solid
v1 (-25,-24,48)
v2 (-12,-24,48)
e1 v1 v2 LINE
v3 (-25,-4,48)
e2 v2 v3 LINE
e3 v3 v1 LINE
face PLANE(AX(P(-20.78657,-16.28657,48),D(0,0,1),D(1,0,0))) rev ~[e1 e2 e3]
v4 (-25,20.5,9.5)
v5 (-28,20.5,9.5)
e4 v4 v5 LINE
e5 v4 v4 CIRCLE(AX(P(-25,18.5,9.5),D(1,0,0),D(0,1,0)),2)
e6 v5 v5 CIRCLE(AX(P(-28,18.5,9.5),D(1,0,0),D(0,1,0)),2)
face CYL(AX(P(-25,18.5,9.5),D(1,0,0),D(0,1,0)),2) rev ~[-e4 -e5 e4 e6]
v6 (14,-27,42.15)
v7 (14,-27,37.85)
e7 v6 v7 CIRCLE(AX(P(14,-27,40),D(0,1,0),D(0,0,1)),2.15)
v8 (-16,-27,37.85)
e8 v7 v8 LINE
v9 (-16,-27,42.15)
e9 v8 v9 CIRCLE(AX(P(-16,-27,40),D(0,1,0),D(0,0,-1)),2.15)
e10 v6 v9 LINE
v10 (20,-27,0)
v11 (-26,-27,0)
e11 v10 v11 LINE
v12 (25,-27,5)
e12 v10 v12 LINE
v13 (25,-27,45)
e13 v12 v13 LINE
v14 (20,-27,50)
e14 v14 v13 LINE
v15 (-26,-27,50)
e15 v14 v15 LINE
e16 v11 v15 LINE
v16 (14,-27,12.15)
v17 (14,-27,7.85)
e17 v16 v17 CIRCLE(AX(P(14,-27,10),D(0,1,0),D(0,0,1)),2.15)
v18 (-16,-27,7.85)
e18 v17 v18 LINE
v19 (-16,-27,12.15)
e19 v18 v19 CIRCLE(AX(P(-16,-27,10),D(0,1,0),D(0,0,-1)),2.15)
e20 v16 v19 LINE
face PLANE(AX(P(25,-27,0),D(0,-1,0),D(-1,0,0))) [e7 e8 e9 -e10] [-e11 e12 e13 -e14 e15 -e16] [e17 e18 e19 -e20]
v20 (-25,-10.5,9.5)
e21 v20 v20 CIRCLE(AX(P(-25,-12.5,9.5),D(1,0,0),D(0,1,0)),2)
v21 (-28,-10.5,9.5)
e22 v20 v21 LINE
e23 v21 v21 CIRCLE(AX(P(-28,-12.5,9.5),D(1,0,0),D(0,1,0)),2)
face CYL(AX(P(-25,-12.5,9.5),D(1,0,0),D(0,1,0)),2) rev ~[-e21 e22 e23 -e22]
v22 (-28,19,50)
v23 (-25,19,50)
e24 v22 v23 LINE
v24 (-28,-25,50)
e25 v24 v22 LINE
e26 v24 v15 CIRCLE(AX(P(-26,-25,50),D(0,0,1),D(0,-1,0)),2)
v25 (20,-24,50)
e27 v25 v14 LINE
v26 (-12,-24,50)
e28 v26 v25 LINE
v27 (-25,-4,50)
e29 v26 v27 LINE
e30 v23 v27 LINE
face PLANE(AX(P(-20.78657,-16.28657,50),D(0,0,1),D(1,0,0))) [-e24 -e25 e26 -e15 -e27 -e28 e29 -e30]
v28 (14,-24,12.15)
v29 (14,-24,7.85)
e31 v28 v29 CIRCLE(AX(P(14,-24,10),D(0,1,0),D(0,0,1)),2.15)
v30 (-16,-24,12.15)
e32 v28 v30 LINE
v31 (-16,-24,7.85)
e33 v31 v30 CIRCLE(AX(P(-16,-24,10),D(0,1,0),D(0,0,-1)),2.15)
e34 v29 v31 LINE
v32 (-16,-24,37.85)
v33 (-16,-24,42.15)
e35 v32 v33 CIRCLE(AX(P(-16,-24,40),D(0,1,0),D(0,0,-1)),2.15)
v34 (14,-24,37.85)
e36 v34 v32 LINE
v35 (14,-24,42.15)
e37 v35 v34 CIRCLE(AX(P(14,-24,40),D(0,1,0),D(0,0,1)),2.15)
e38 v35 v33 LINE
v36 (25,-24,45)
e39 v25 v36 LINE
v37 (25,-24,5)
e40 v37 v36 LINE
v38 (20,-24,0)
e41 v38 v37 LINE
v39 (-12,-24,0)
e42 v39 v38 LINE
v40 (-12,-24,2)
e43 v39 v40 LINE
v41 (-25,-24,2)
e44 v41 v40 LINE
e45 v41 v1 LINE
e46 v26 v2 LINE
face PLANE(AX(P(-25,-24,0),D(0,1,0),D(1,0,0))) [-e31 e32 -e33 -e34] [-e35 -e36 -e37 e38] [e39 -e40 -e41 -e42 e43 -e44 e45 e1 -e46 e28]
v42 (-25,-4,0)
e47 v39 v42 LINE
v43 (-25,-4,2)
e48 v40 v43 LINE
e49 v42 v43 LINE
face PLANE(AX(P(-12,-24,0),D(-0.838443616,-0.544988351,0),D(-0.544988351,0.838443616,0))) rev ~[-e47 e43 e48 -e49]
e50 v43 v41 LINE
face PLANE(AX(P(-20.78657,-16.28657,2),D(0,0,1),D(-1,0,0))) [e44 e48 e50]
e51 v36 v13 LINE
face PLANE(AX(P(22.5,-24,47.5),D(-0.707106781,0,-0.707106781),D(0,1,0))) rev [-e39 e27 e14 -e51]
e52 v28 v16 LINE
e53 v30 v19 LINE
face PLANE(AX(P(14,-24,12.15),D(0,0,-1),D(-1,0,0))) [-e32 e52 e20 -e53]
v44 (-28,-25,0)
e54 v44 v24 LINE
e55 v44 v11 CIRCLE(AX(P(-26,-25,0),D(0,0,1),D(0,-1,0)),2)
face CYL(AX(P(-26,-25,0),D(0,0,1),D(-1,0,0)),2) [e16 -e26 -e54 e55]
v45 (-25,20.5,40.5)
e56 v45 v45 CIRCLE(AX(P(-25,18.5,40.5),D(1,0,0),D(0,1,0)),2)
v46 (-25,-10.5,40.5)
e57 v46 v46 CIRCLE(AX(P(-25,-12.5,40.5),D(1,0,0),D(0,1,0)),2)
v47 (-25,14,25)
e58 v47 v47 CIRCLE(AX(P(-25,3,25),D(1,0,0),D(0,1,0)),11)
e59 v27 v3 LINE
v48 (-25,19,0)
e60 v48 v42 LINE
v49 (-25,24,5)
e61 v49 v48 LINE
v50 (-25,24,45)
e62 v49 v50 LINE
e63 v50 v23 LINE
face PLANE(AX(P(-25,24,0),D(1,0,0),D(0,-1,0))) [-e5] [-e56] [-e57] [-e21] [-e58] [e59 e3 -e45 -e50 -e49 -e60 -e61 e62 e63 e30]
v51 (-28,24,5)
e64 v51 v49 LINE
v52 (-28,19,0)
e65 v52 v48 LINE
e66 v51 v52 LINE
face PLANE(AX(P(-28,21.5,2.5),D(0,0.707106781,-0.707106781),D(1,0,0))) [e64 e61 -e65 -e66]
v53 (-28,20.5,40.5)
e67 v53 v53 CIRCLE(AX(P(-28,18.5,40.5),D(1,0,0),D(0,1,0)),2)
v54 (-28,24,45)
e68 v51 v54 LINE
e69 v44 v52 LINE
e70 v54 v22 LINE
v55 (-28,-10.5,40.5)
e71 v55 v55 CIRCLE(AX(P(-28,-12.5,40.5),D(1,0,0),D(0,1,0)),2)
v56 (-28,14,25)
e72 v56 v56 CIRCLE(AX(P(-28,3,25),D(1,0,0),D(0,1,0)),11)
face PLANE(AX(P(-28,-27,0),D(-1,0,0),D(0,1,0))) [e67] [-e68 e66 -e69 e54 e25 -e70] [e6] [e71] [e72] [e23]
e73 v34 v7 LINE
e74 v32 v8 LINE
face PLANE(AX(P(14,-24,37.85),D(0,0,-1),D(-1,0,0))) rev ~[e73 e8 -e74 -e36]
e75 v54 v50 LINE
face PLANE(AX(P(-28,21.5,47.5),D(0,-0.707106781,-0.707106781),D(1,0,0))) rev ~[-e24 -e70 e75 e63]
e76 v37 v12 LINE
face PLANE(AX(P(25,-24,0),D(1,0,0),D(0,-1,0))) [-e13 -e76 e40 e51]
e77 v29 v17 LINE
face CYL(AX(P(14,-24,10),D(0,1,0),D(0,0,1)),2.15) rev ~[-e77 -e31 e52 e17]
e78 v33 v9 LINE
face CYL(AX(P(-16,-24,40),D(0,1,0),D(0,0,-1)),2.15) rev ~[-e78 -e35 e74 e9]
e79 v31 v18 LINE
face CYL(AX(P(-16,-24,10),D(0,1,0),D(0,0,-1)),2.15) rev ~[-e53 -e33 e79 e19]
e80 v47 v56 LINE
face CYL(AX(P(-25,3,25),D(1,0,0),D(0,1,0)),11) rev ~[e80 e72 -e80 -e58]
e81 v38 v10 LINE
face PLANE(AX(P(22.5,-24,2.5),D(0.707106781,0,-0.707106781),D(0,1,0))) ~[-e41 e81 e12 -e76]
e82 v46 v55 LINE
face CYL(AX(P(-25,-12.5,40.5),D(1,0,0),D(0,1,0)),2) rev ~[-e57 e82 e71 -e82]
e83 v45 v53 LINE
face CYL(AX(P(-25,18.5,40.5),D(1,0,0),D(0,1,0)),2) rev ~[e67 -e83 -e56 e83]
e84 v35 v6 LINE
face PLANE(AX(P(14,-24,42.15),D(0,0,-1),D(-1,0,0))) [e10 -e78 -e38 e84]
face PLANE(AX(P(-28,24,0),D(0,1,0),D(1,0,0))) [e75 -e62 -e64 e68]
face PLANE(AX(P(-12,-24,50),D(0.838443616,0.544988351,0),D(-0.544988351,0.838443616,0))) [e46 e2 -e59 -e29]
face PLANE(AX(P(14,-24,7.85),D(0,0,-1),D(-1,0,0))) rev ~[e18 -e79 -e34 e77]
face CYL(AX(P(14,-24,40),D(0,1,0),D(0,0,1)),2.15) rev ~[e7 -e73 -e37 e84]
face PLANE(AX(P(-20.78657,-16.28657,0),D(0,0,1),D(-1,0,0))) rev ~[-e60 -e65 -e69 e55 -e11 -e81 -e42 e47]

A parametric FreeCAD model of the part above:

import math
import FreeCAD as App
import Part
import Sketcher
from FreeCAD import Vector


def edges_at(feature, points):
    """Names of the edges that pass closest to the given points."""
    edges = feature.Shape.Edges
    near = lambda p: min(range(len(edges)), key=lambda i: edges[i].distToShape(Part.Vertex(*p))[0])
    return sorted({f"Edge{near(p) + 1}" for p in points})

doc = App.newDocument("Part")
body = doc.addObject("PartDesign::Body", "Body")

sketch1 = doc.addObject("Sketcher::SketchObject", "Sketch")
body.addObject(sketch1)
sketch1.AttachmentSupport = (doc.XY_Plane, [""])
sketch1.MapMode = "FlatFace"
sketch1.addGeometry([
    Part.LineSegment(Vector(-25, 24, 0), Vector(-28, 24, 0)),
    Part.LineSegment(Vector(-28, 24, 0), Vector(-28, -27, 0)),
    Part.LineSegment(Vector(-28, -27, 0), Vector(25, -27, 0)),
    Part.LineSegment(Vector(25, -27, 0), Vector(25, -24, 0)),
    Part.LineSegment(Vector(25, -24, 0), Vector(-25, -24, 0)),
    Part.LineSegment(Vector(-25, -24, 0), Vector(-25, 24, 0)),
], False)
sketch1.addConstraint([
    Sketcher.Constraint("Coincident", 0, 2, 1, 1),
    Sketcher.Constraint("Coincident", 1, 2, 2, 1),
    Sketcher.Constraint("Coincident", 2, 2, 3, 1),
    Sketcher.Constraint("Coincident", 3, 2, 4, 1),
    Sketcher.Constraint("Coincident", 4, 2, 5, 1),
    Sketcher.Constraint("Coincident", 5, 2, 0, 1),
    Sketcher.Constraint("Horizontal", 0),
    Sketcher.Constraint("Vertical", 1),
    Sketcher.Constraint("Horizontal", 2),
    Sketcher.Constraint("Vertical", 3),
    Sketcher.Constraint("Horizontal", 4),
    Sketcher.Constraint("Vertical", 5),
    Sketcher.Constraint("Symmetric", 3, 2, 5, 2, -1, 1),
    Sketcher.Constraint("Equal", 0, 3),
    Sketcher.Constraint("DistanceX", 0, 2, 0, 1, 3.0),
    Sketcher.Constraint("DistanceX", 2, 1, 2, 2, 53.0),
    Sketcher.Constraint("DistanceY", 1, 2, 1, 1, 51.0),
])
pad1 = doc.addObject("PartDesign::Pad", "Pad")
body.addObject(pad1)
pad1.Profile = sketch1
pad1.Length = 50

sketch2 = doc.addObject("Sketcher::SketchObject", "Sketch001")
body.addObject(sketch2)
sketch2.AttachmentSupport = (doc.YZ_Plane, [""])
sketch2.MapMode = "FlatFace"
sketch2.AttachmentOffset = App.Placement(Vector(0, 0, -25), App.Rotation())
sketch2.addGeometry([
    Part.Circle(Vector(3, 25, 0), Vector(0, 0, 1), 11),
    Part.Circle(Vector(-12.5, 40.5, 0), Vector(0, 0, 1), 2),
    Part.Circle(Vector(18.5, 40.5, 0), Vector(0, 0, 1), 2),
    Part.Circle(Vector(-12.5, 9.5, 0), Vector(0, 0, 1), 2),
    Part.Circle(Vector(18.5, 9.5, 0), Vector(0, 0, 1), 2),
], False)
sketch2.addConstraint([
    Sketcher.Constraint("Equal", 1, 2),
    Sketcher.Constraint("Equal", 2, 3),
    Sketcher.Constraint("Equal", 3, 4),
    Sketcher.Constraint("Horizontal", 1, 3, 2, 3),
    Sketcher.Constraint("Horizontal", 3, 3, 4, 3),
    Sketcher.Constraint("Vertical", 1, 3, 3, 3),
    Sketcher.Constraint("Vertical", 2, 3, 4, 3),
    Sketcher.Constraint("Diameter", 0, 22.0),
    Sketcher.Constraint("Diameter", 1, 4.0),
    Sketcher.Constraint("DistanceX", -1, 1, 0, 3, 3.0),
    Sketcher.Constraint("DistanceY", -1, 1, 0, 3, 25.0),
    Sketcher.Constraint("DistanceX", 1, 3, 2, 3, 31.0),
    Sketcher.Constraint("DistanceY", 3, 3, 1, 3, 31.0),
    Sketcher.Constraint("DistanceX", 1, 3, -1, 1, 12.5),
    Sketcher.Constraint("DistanceY", -1, 1, 1, 3, 40.5),
])
pocket1 = doc.addObject("PartDesign::Pocket", "Pocket")
body.addObject(pocket1)
pocket1.Profile = sketch2
pocket1.Length = 3

sketch3 = doc.addObject("Sketcher::SketchObject", "Sketch002")
body.addObject(sketch3)
sketch3.AttachmentSupport = (doc.XZ_Plane, [""])
sketch3.MapMode = "FlatFace"
sketch3.AttachmentOffset = App.Placement(Vector(0, 0, 24), App.Rotation())
sketch3.addGeometry([
    Part.ArcOfCircle(Part.Circle(Vector(14, 40, 0), Vector(0, 0, 1), 2.1), math.radians(-90), math.radians(90)),
    Part.LineSegment(Vector(14, 37.9, 0), Vector(-16, 37.9, 0)),
    Part.ArcOfCircle(Part.Circle(Vector(-16, 40, 0), Vector(0, 0, 1), 2.1), math.radians(90), math.radians(270)),
    Part.LineSegment(Vector(-16, 42.1, 0), Vector(14, 42.1, 0)),
    Part.ArcOfCircle(Part.Circle(Vector(14, 10, 0), Vector(0, 0, 1), 2.1), math.radians(-90), math.radians(90)),
    Part.LineSegment(Vector(14, 7.8, 0), Vector(-16, 7.8, 0)),
    Part.ArcOfCircle(Part.Circle(Vector(-16, 10, 0), Vector(0, 0, 1), 2.1), math.radians(90), math.radians(270)),
    Part.LineSegment(Vector(-16, 12.2, 0), Vector(14, 12.2, 0)),
], False)
sketch3.addConstraint([
    Sketcher.Constraint("Tangent", 0, 1, 1, 1),
    Sketcher.Constraint("Tangent", 1, 2, 2, 2),
    Sketcher.Constraint("Tangent", 2, 1, 3, 1),
    Sketcher.Constraint("Tangent", 3, 2, 0, 2),
    Sketcher.Constraint("Tangent", 4, 1, 5, 1),
    Sketcher.Constraint("Tangent", 5, 2, 6, 2),
    Sketcher.Constraint("Tangent", 6, 1, 7, 1),
    Sketcher.Constraint("Tangent", 7, 2, 4, 2),
    Sketcher.Constraint("Horizontal", 1),
    Sketcher.Constraint("Horizontal", 3),
    Sketcher.Constraint("Horizontal", 5),
    Sketcher.Constraint("Horizontal", 7),
    Sketcher.Constraint("Equal", 2, 4),
    Sketcher.Constraint("Vertical", 0, 3, 4, 3),
    Sketcher.Constraint("Vertical", 2, 3, 6, 3),
    Sketcher.Constraint("DistanceX", 1, 2, 1, 1, 30.0),
    Sketcher.Constraint("Radius", 0, 2.15),
    Sketcher.Constraint("DistanceX", -1, 1, 0, 3, 14.0),
    Sketcher.Constraint("DistanceY", -1, 1, 0, 3, 40.0),
    Sketcher.Constraint("DistanceY", -1, 1, 4, 3, 10.0),
])
pocket2 = doc.addObject("PartDesign::Pocket", "Pocket001")
body.addObject(pocket2)
pocket2.Profile = sketch3
pocket2.Length = 3
pocket2.Reversed = True
doc.recompute()

chamfer = doc.addObject("PartDesign::Chamfer", "Chamfer")
body.addObject(chamfer)
chamfer.Base = (pocket2, edges_at(pocket2, [
    (-26.5, 24, 0),
    (25, -25.5, 0),
    (-26.5, 24, 50),
    (25, -25.5, 50),
]))
chamfer.Size = 5
doc.recompute()

fillet = doc.addObject("PartDesign::Fillet", "Fillet")
body.addObject(fillet)
fillet.Base = (chamfer, edges_at(chamfer, [(-28, -27, 25)]))
fillet.Radius = 2

sketch4 = doc.addObject("Sketcher::SketchObject", "Sketch003")
body.addObject(sketch4)
sketch4.AttachmentSupport = (doc.XY_Plane, [""])
sketch4.MapMode = "FlatFace"
sketch4.AttachmentOffset = App.Placement(Vector(0, 0, 50), App.Rotation())
sketch4.addGeometry([
    Part.LineSegment(Vector(-25, -24, 0), Vector(-12, -24, 0)),
    Part.LineSegment(Vector(-12, -24, 0), Vector(-25, -4, 0)),
    Part.LineSegment(Vector(-25, -4, 0), Vector(-25, -24, 0)),
], False)
sketch4.addConstraint([
    Sketcher.Constraint("Coincident", 0, 2, 1, 1),
    Sketcher.Constraint("Coincident", 1, 2, 2, 1),
    Sketcher.Constraint("Coincident", 2, 2, 0, 1),
    Sketcher.Constraint("Horizontal", 0),
    Sketcher.Constraint("Vertical", 2),
    Sketcher.Constraint("DistanceX", 0, 1, 0, 2, 13.0),
    Sketcher.Constraint("DistanceY", 2, 2, 2, 1, 20.0),
    Sketcher.Constraint("DistanceX", 0, 2, -1, 1, 12.0),
    Sketcher.Constraint("DistanceY", 0, 2, -1, 1, 24.0),
])
pad2 = doc.addObject("PartDesign::Pad", "Pad001")
body.addObject(pad2)
pad2.Profile = sketch4
pad2.Length = 2
pad2.Reversed = True

sketch5 = doc.addObject("Sketcher::SketchObject", "Sketch004")
body.addObject(sketch5)
sketch5.AttachmentSupport = (doc.XY_Plane, [""])
sketch5.MapMode = "FlatFace"
sketch5.addGeometry([
    Part.LineSegment(Vector(-12, -24, 0), Vector(-25, -24, 0)),
    Part.LineSegment(Vector(-25, -24, 0), Vector(-25, -4, 0)),
    Part.LineSegment(Vector(-25, -4, 0), Vector(-12, -24, 0)),
], False)
sketch5.addConstraint([
    Sketcher.Constraint("Coincident", 0, 2, 1, 1),
    Sketcher.Constraint("Coincident", 1, 2, 2, 1),
    Sketcher.Constraint("Coincident", 2, 2, 0, 1),
    Sketcher.Constraint("Horizontal", 0),
    Sketcher.Constraint("Vertical", 1),
    Sketcher.Constraint("DistanceX", 0, 2, 0, 1, 13.0),
    Sketcher.Constraint("DistanceY", 1, 1, 1, 2, 20.0),
    Sketcher.Constraint("DistanceX", 0, 2, -1, 1, 25.0),
    Sketcher.Constraint("DistanceY", 0, 2, -1, 1, 24.0),
])
pad3 = doc.addObject("PartDesign::Pad", "Pad002")
body.addObject(pad3)
pad3.Profile = sketch5
pad3.Length = 2

doc.recompute()
